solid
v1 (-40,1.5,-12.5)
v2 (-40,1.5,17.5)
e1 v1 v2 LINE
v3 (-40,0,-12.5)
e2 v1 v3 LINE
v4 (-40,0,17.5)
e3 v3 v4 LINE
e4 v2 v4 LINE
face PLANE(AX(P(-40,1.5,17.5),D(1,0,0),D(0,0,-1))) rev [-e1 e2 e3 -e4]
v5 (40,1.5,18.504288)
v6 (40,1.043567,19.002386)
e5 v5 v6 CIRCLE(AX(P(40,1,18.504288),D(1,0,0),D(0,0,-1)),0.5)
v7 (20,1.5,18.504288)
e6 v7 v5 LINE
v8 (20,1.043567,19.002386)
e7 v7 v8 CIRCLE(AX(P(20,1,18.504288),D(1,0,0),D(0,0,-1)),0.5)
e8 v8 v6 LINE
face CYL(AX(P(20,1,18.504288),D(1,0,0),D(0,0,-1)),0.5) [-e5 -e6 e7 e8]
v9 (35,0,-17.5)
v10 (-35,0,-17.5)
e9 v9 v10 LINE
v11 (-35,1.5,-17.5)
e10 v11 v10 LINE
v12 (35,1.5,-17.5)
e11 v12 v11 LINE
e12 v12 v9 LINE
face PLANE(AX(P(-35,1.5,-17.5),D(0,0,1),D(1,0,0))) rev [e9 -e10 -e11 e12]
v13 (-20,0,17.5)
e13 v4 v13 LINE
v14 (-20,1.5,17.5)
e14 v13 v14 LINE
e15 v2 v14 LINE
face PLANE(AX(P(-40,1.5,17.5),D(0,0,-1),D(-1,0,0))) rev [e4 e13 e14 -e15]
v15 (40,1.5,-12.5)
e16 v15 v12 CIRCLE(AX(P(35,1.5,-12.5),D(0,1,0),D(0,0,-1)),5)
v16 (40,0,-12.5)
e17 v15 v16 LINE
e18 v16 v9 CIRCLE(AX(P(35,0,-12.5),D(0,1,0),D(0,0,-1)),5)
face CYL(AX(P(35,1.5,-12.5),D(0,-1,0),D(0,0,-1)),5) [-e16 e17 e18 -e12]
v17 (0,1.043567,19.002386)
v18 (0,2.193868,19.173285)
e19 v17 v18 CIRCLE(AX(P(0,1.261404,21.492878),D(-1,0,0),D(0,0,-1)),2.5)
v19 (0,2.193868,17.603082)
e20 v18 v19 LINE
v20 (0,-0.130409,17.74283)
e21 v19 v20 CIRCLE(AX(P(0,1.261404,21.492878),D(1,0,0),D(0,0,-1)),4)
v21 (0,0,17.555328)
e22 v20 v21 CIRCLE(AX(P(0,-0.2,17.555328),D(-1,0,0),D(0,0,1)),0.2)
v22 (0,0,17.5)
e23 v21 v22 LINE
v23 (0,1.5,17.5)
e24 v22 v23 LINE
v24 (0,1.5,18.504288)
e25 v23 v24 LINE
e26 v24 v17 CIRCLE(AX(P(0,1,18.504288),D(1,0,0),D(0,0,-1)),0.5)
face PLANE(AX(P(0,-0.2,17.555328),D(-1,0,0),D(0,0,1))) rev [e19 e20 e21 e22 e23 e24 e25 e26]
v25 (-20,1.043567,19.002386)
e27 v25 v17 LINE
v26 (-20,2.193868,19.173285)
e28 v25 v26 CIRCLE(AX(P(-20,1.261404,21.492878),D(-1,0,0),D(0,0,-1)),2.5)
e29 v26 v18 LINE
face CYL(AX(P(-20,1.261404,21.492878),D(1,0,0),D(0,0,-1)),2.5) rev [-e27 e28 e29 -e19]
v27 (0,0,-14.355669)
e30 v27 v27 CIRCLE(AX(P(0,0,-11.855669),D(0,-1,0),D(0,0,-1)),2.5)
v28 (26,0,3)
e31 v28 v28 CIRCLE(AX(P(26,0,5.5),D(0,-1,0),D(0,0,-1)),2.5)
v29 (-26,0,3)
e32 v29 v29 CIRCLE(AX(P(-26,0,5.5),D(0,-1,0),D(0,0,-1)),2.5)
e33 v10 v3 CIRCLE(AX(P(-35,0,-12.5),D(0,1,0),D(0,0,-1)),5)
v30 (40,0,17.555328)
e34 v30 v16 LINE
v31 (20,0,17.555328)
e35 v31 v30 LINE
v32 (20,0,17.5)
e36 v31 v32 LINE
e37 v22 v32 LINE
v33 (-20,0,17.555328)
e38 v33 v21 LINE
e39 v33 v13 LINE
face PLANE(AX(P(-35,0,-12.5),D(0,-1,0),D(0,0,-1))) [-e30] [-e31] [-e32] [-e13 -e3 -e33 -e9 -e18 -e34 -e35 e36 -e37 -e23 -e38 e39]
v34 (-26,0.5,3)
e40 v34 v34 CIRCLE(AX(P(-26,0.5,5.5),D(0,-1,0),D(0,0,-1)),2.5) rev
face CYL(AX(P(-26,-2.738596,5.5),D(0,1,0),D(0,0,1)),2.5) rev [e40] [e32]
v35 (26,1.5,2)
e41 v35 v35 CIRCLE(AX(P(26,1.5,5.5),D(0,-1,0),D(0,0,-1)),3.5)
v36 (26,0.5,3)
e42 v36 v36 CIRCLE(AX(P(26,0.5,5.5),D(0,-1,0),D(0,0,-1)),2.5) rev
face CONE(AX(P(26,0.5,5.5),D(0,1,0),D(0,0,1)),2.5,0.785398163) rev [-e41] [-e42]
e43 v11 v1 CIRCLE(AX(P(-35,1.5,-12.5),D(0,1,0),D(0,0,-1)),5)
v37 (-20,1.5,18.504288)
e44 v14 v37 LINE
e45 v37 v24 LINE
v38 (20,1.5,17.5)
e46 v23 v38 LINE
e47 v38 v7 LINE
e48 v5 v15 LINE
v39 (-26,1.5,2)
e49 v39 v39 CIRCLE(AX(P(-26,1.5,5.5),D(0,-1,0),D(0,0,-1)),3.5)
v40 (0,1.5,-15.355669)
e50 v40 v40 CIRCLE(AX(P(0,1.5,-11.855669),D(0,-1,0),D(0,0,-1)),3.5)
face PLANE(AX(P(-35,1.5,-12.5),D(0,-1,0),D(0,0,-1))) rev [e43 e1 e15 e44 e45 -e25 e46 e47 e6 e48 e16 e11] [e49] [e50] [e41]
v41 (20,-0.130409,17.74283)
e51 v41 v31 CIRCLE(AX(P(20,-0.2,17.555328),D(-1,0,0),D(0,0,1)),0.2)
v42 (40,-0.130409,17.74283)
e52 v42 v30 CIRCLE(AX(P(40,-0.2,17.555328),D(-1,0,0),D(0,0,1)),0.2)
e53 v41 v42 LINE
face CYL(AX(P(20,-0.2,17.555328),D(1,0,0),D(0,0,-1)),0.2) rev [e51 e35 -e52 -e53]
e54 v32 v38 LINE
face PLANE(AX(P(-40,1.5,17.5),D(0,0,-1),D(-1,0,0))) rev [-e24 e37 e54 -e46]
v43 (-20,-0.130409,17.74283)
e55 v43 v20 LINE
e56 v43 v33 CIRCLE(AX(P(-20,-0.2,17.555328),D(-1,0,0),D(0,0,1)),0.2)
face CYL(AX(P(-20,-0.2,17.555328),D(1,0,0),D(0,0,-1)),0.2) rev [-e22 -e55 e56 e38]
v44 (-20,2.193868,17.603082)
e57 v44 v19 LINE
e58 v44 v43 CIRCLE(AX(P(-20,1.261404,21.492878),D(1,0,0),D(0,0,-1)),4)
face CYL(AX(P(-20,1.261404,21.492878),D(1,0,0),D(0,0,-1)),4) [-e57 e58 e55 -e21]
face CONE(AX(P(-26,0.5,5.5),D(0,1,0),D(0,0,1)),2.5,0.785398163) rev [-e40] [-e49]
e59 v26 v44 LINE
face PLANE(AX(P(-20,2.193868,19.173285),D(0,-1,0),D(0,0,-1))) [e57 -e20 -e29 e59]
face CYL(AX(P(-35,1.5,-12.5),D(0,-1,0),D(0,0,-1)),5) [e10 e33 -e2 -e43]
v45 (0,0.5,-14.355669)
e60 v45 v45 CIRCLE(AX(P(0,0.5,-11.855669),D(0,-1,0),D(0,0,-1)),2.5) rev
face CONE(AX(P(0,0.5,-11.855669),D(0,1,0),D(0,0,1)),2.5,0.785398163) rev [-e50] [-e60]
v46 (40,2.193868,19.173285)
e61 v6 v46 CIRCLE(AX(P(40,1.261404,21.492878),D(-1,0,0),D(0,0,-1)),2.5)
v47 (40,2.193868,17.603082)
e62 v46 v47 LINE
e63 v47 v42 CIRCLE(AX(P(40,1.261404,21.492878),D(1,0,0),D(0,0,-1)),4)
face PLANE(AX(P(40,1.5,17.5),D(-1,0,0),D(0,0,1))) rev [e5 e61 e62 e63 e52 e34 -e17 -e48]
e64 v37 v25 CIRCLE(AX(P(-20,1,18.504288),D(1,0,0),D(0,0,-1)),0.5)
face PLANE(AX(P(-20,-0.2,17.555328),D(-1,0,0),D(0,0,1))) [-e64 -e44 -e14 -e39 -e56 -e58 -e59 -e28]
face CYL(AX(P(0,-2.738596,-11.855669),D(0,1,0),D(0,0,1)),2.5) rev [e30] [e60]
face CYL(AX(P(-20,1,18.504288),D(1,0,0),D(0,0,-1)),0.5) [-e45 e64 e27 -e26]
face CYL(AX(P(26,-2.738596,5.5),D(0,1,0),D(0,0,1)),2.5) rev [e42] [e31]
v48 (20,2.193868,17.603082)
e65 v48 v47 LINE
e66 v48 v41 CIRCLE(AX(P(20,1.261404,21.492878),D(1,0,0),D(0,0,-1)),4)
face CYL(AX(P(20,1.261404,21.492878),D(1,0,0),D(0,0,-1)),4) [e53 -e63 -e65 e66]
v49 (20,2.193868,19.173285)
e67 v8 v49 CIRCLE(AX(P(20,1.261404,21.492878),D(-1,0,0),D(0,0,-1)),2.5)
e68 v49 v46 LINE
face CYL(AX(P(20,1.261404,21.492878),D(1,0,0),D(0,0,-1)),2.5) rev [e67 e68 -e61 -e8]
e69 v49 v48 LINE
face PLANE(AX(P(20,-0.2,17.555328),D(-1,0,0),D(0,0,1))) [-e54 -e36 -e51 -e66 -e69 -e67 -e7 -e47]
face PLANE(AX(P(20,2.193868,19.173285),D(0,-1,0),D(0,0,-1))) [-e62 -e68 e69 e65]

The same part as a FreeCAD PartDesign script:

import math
import FreeCAD as App
import Part
import Sketcher

V = App.Vector


def edges_at(feature, points):
    """Names of the edges that pass closest to the given points."""
    edges = feature.Shape.Edges
    near = lambda p: min(range(len(edges)), key=lambda i: edges[i].distToShape(Part.Vertex(*p))[0])
    return sorted({f"Edge{near(p) + 1}" for p in points})

doc = App.newDocument("Part")
body = doc.addObject("PartDesign::Body", "Body")

# Sketch on XZ plane
sketch1 = body.newObject("Sketcher::SketchObject", "Sketch")
sketch1.AttachmentSupport = (doc.getObject("XZ_Plane"), [""])
sketch1.MapMode = "FlatFace"
sketch1.addGeometry(Part.LineSegment(V(-40, 18, 0), V(40, 18, 0)), False)
sketch1.addGeometry(Part.LineSegment(V(40, 18, 0), V(40, -12, 0)), False)
sketch1.addGeometry(Part.ArcOfCircle(Part.Circle(V(35, -12, 0), V(0, 0, 1), 5), math.radians(-90), math.radians(0)), False)
sketch1.addGeometry(Part.LineSegment(V(35, -18, 0), V(-35, -18, 0)), False)
sketch1.addGeometry(Part.ArcOfCircle(Part.Circle(V(-35, -12, 0), V(0, 0, 1), 5), math.radians(180), math.radians(270)), False)
sketch1.addGeometry(Part.LineSegment(V(-40, -12, 0), V(-40, 18, 0)), False)
sketch1.addConstraint(Sketcher.Constraint("Coincident", 0, 2, 1, 1))
sketch1.addConstraint(Sketcher.Constraint("Tangent", 1, 2, 2, 2))
sketch1.addConstraint(Sketcher.Constraint("Tangent", 2, 1, 3, 1))
sketch1.addConstraint(Sketcher.Constraint("Tangent", 3, 2, 4, 2))
sketch1.addConstraint(Sketcher.Constraint("Tangent", 4, 1, 5, 1))
sketch1.addConstraint(Sketcher.Constraint("Coincident", 5, 2, 0, 1))
sketch1.addConstraint(Sketcher.Constraint("Horizontal", 0))
sketch1.addConstraint(Sketcher.Constraint("Vertical", 1))
sketch1.addConstraint(Sketcher.Constraint("Horizontal", 3))
sketch1.addConstraint(Sketcher.Constraint("Vertical", 5))
sketch1.addConstraint(Sketcher.Constraint("Equal", 2, 4))
sketch1.addConstraint(Sketcher.Constraint("Radius", 2, 5.0))
sketch1.addConstraint(Sketcher.Constraint("DistanceX", 0, 1, 0, 2, 80.0))
sketch1.addConstraint(Sketcher.Constraint("DistanceY", 1, 2, 1, 1, 30.0))
sketch1.addConstraint(Sketcher.Constraint("DistanceX", -1, 1, 2, 3, 35.0))
sketch1.addConstraint(Sketcher.Constraint("DistanceY", 2, 3, -1, 1, 12.5))
pad1 = body.newObject("PartDesign::Pad", "Pad")
pad1.Profile = sketch1
pad1.Length = 1.5
pad1.Reversed = True

# Sketch on YZ plane
sketch2 = body.newObject("Sketcher::SketchObject", "Sketch001")
sketch2.AttachmentSupport = (doc.getObject("YZ_Plane"), [""])
sketch2.MapMode = "FlatFace"
sketch2.AttachmentOffset = App.Placement(V(0, 0, 40), App.Rotation())
sketch2.addGeometry(Part.LineSegment(V(1.5, 17.5, 0), V(1.5, 18.5, 0)), False)
sketch2.addGeometry(Part.ArcOfCircle(Part.Circle(V(1, 18.5, 0), V(0, 0, 1), 0.5), math.radians(0), math.radians(85)), False)
sketch2.addGeometry(Part.ArcOfCircle(Part.Circle(V(1.26, 21.49, 0), V(0, 0, 1), 2.5), math.radians(-68), math.radians(265)), False)
sketch2.addGeometry(Part.LineSegment(V(2.19, 19.17, 0), V(2.19, 17.6, 0)), False)
sketch2.addGeometry(Part.ArcOfCircle(Part.Circle(V(1.26, 21.49, 0), V(0, 0, 1), 4), math.radians(-77), math.radians(250)), False)
sketch2.addGeometry(Part.ArcOfCircle(Part.Circle(V(-0.2, 17.56, 0), V(0, 0, 1), 0.2), math.radians(0), math.radians(70)), False)
sketch2.addGeometry(Part.LineSegment(V(0, 17.56, 0), V(0, 17.5, 0)), False)
sketch2.addGeometry(Part.LineSegment(V(0, 17.5, 0), V(1.5, 17.5, 0)), False)
sketch2.addConstraint(Sketcher.Constraint("Tangent", 0, 2, 1, 1))
sketch2.addConstraint(Sketcher.Constraint("Tangent", 1, 2, 2, 2))
sketch2.addConstraint(Sketcher.Constraint("Coincident", 2, 1, 3, 1))
sketch2.addConstraint(Sketcher.Constraint("Coincident", 3, 2, 4, 1))
sketch2.addConstraint(Sketcher.Constraint("Tangent", 4, 2, 5, 2))
sketch2.addConstraint(Sketcher.Constraint("Tangent", 5, 1, 6, 1))
sketch2.addConstraint(Sketcher.Constraint("Coincident", 6, 2, 7, 1))
sketch2.addConstraint(Sketcher.Constraint("Coincident", 7, 2, 0, 1))
sketch2.addConstraint(Sketcher.Constraint("Vertical", 0))
sketch2.addConstraint(Sketcher.Constraint("Vertical", 3))
sketch2.addConstraint(Sketcher.Constraint("Vertical", 6))
sketch2.addConstraint(Sketcher.Constraint("Horizontal", 7))
sketch2.addConstraint(Sketcher.Constraint("Coincident", 4, 3, 2, 3))
sketch2.addConstraint(Sketcher.Constraint("PointOnObject", 5, 1, -2))
sketch2.addConstraint(Sketcher.Constraint("Radius", 4, 4.0))
sketch2.addConstraint(Sketcher.Constraint("Radius", 1, 0.5))
sketch2.addConstraint(Sketcher.Constraint("Radius", 2, 2.5))
sketch2.addConstraint(Sketcher.Constraint("Radius", 5, 0.2))
sketch2.addConstraint(Sketcher.Constraint("DistanceX", 7, 1, 7, 2, 1.5))
sketch2.addConstraint(Sketcher.Constraint("DistanceY", -1, 1, 6, 2, 17.5))
sketch2.addConstraint(Sketcher.Constraint("DistanceY", 0, 1, 0, 2, 1.004288))
sketch2.addConstraint(Sketcher.Constraint("DistanceY", 6, 2, 6, 1, 0.055328))
sketch2.addConstraint(Sketcher.Constraint("DistanceX", 1, 2, 2, 1, 1.1503))
pad2 = body.newObject("PartDesign::Pad", "Pad001")
pad2.Profile = sketch2
pad2.Length = 20
pad2.Reversed = True
doc.recompute()

linearpattern = body.newObject("PartDesign::LinearPattern", "LinearPattern")
linearpattern.Originals = [pad2]
linearpattern.Direction = (doc.getObject("X_Axis"), [""])
linearpattern.Mode = "offset"
linearpattern.Offset = 40
linearpattern.Occurrences = 2
linearpattern.Reversed = True
body.Tip = linearpattern

# Sketch on XZ plane
sketch3 = body.newObject("Sketcher::SketchObject", "Sketch002")
sketch3.AttachmentSupport = (doc.getObject("XZ_Plane"), [""])
sketch3.MapMode = "FlatFace"
sketch3.AttachmentOffset = App.Placement(V(0, 0, -1.5), App.Rotation())
sketch3.addGeometry(Part.Circle(V(-26, 5.5, 0), V(0, 0, 1), 2.5), False)
sketch3.addGeometry(Part.Circle(V(26, 5.5, 0), V(0, 0, 1), 2.5), False)
sketch3.addGeometry(Part.Circle(V(0, -11.9, 0), V(0, 0, 1), 2.5), False)
sketch3.addConstraint(Sketcher.Constraint("Equal", 0, 1))
sketch3.addConstraint(Sketcher.Constraint("Equal", 1, 2))
sketch3.addConstraint(Sketcher.Constraint("Symmetric", 0, 3, 1, 3, -2))
sketch3.addConstraint(Sketcher.Constraint("PointOnObject", 2, 3, -2))
sketch3.addConstraint(Sketcher.Constraint("Diameter", 0, 5.0))
sketch3.addConstraint(Sketcher.Constraint("DistanceX", 0, 3, -1, 1, 26.0))
sketch3.addConstraint(Sketcher.Constraint("DistanceY", -1, 1, 0, 3, 5.5))
sketch3.addConstraint(Sketcher.Constraint("DistanceY", 2, 3, -1, 1, 11.855669))
pocket1 = body.newObject("PartDesign::Pocket", "Pocket")
pocket1.Profile = sketch3
pocket1.Type = "ThroughAll"
pocket1.Reversed = True
doc.recompute()

chamfer = body.newObject("PartDesign::Chamfer", "Chamfer")
chamfer.Base = (pocket1, edges_at(pocket1, [(-28.5, 1.5, 5.5), (23.5, 1.5, 5.5), (-2.5, 1.5, -11.856)]))
chamfer.Size = 1

doc.recompute()
